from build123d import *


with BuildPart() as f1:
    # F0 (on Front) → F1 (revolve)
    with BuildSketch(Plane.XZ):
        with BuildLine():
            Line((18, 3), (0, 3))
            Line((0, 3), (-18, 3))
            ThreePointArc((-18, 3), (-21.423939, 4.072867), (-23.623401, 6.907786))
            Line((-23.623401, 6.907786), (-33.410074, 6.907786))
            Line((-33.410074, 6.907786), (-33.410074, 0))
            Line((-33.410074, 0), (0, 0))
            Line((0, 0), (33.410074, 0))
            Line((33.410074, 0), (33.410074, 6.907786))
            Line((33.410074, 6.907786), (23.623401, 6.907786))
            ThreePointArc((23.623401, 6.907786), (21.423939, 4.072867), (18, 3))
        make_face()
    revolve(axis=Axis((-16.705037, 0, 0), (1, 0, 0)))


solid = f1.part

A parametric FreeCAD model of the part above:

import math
import FreeCAD as App
import Part
import Sketcher

V = App.Vector
Q = App.Units.Quantity

doc = App.newDocument("Part")
body = doc.addObject("PartDesign::Body", "Body")

# Sketch on XZ plane
sketch1 = body.newObject("Sketcher::SketchObject", "Sketch")
sketch1.AttachmentSupport = (doc.getObject("XZ_Plane"), [""])
sketch1.MapMode = "FlatFace"
sketch1.addGeometry(Part.LineSegment(V(18, 3, 0), V(-18, 3, 0)), False)
sketch1.addGeometry(Part.ArcOfCircle(Part.Circle(V(-18, 9, 0), V(0, 0, 1), 6), math.radians(-160), math.radians(-90)), False)
sketch1.addGeometry(Part.LineSegment(V(-24, 7, 0), V(-33, 7, 0)), False)
sketch1.addGeometry(Part.LineSegment(V(-33, 7, 0), V(-33, 0, 0)), False)
sketch1.addGeometry(Part.LineSegment(V(-33, 0, 0), V(33, 0, 0)), False)
sketch1.addGeometry(Part.LineSegment(V(33, 0, 0), V(33, 7, 0)), False)
sketch1.addGeometry(Part.LineSegment(V(33, 7, 0), V(24, 7, 0)), False)
sketch1.addGeometry(Part.ArcOfCircle(Part.Circle(V(18, 9, 0), V(0, 0, 1), 6), math.radians(-90), math.radians(-20)), False)
sketch1.addConstraint(Sketcher.Constraint("Tangent", 0, 2, 1, 2))
sketch1.addConstraint(Sketcher.Constraint("Coincident", 1, 1, 2, 1))
sketch1.addConstraint(Sketcher.Constraint("Coincident", 2, 2, 3, 1))
sketch1.addConstraint(Sketcher.Constraint("Coincident", 3, 2, 4, 1))
sketch1.addConstraint(Sketcher.Constraint("Coincident", 4, 2, 5, 1))
sketch1.addConstraint(Sketcher.Constraint("Coincident", 5, 2, 6, 1))
sketch1.addConstraint(Sketcher.Constraint("Coincident", 6, 2, 7, 2))
sketch1.addConstraint(Sketcher.Constraint("Tangent", 7, 1, 0, 1))
sketch1.addConstraint(Sketcher.Constraint("Horizontal", 0))
sketch1.addConstraint(Sketcher.Constraint("Horizontal", 2))
sketch1.addConstraint(Sketcher.Constraint("Vertical", 3))
sketch1.addConstraint(Sketcher.Constraint("Horizontal", 4))
sketch1.addConstraint(Sketcher.Constraint("Vertical", 5))
sketch1.addConstraint(Sketcher.Constraint("Horizontal", 6))
sketch1.addConstraint(Sketcher.Constraint("Equal", 1, 7))
sketch1.addConstraint(Sketcher.Constraint("Symmetric", 3, 2, 4, 2, -1, 1))
sketch1.addConstraint(Sketcher.Constraint("Symmetric", 1, 1, 6, 2, -2))
sketch1.addConstraint(Sketcher.Constraint("Radius", 1, Q("6 mm")))
sketch1.addConstraint(Sketcher.Constraint("DistanceX", 0, 2, 0, 1, Q("36 mm")))
sketch1.addConstraint(Sketcher.Constraint("DistanceY", -1, 1, 1, 3, Q("9 mm")))
sketch1.addConstraint(Sketcher.Constraint("DistanceX", 4, 1, 4, 2, Q("66.820148 mm")))
sketch1.addConstraint(Sketcher.Constraint("DistanceX", 1, 1, -1, 1, Q("23.623401 mm")))
revolution = body.newObject("PartDesign::Revolution", "Revolution")
revolution.Profile = sketch1
revolution.ReferenceAxis = (sketch1, ["H_Axis"])
revolution.Angle = 360

doc.recompute()
